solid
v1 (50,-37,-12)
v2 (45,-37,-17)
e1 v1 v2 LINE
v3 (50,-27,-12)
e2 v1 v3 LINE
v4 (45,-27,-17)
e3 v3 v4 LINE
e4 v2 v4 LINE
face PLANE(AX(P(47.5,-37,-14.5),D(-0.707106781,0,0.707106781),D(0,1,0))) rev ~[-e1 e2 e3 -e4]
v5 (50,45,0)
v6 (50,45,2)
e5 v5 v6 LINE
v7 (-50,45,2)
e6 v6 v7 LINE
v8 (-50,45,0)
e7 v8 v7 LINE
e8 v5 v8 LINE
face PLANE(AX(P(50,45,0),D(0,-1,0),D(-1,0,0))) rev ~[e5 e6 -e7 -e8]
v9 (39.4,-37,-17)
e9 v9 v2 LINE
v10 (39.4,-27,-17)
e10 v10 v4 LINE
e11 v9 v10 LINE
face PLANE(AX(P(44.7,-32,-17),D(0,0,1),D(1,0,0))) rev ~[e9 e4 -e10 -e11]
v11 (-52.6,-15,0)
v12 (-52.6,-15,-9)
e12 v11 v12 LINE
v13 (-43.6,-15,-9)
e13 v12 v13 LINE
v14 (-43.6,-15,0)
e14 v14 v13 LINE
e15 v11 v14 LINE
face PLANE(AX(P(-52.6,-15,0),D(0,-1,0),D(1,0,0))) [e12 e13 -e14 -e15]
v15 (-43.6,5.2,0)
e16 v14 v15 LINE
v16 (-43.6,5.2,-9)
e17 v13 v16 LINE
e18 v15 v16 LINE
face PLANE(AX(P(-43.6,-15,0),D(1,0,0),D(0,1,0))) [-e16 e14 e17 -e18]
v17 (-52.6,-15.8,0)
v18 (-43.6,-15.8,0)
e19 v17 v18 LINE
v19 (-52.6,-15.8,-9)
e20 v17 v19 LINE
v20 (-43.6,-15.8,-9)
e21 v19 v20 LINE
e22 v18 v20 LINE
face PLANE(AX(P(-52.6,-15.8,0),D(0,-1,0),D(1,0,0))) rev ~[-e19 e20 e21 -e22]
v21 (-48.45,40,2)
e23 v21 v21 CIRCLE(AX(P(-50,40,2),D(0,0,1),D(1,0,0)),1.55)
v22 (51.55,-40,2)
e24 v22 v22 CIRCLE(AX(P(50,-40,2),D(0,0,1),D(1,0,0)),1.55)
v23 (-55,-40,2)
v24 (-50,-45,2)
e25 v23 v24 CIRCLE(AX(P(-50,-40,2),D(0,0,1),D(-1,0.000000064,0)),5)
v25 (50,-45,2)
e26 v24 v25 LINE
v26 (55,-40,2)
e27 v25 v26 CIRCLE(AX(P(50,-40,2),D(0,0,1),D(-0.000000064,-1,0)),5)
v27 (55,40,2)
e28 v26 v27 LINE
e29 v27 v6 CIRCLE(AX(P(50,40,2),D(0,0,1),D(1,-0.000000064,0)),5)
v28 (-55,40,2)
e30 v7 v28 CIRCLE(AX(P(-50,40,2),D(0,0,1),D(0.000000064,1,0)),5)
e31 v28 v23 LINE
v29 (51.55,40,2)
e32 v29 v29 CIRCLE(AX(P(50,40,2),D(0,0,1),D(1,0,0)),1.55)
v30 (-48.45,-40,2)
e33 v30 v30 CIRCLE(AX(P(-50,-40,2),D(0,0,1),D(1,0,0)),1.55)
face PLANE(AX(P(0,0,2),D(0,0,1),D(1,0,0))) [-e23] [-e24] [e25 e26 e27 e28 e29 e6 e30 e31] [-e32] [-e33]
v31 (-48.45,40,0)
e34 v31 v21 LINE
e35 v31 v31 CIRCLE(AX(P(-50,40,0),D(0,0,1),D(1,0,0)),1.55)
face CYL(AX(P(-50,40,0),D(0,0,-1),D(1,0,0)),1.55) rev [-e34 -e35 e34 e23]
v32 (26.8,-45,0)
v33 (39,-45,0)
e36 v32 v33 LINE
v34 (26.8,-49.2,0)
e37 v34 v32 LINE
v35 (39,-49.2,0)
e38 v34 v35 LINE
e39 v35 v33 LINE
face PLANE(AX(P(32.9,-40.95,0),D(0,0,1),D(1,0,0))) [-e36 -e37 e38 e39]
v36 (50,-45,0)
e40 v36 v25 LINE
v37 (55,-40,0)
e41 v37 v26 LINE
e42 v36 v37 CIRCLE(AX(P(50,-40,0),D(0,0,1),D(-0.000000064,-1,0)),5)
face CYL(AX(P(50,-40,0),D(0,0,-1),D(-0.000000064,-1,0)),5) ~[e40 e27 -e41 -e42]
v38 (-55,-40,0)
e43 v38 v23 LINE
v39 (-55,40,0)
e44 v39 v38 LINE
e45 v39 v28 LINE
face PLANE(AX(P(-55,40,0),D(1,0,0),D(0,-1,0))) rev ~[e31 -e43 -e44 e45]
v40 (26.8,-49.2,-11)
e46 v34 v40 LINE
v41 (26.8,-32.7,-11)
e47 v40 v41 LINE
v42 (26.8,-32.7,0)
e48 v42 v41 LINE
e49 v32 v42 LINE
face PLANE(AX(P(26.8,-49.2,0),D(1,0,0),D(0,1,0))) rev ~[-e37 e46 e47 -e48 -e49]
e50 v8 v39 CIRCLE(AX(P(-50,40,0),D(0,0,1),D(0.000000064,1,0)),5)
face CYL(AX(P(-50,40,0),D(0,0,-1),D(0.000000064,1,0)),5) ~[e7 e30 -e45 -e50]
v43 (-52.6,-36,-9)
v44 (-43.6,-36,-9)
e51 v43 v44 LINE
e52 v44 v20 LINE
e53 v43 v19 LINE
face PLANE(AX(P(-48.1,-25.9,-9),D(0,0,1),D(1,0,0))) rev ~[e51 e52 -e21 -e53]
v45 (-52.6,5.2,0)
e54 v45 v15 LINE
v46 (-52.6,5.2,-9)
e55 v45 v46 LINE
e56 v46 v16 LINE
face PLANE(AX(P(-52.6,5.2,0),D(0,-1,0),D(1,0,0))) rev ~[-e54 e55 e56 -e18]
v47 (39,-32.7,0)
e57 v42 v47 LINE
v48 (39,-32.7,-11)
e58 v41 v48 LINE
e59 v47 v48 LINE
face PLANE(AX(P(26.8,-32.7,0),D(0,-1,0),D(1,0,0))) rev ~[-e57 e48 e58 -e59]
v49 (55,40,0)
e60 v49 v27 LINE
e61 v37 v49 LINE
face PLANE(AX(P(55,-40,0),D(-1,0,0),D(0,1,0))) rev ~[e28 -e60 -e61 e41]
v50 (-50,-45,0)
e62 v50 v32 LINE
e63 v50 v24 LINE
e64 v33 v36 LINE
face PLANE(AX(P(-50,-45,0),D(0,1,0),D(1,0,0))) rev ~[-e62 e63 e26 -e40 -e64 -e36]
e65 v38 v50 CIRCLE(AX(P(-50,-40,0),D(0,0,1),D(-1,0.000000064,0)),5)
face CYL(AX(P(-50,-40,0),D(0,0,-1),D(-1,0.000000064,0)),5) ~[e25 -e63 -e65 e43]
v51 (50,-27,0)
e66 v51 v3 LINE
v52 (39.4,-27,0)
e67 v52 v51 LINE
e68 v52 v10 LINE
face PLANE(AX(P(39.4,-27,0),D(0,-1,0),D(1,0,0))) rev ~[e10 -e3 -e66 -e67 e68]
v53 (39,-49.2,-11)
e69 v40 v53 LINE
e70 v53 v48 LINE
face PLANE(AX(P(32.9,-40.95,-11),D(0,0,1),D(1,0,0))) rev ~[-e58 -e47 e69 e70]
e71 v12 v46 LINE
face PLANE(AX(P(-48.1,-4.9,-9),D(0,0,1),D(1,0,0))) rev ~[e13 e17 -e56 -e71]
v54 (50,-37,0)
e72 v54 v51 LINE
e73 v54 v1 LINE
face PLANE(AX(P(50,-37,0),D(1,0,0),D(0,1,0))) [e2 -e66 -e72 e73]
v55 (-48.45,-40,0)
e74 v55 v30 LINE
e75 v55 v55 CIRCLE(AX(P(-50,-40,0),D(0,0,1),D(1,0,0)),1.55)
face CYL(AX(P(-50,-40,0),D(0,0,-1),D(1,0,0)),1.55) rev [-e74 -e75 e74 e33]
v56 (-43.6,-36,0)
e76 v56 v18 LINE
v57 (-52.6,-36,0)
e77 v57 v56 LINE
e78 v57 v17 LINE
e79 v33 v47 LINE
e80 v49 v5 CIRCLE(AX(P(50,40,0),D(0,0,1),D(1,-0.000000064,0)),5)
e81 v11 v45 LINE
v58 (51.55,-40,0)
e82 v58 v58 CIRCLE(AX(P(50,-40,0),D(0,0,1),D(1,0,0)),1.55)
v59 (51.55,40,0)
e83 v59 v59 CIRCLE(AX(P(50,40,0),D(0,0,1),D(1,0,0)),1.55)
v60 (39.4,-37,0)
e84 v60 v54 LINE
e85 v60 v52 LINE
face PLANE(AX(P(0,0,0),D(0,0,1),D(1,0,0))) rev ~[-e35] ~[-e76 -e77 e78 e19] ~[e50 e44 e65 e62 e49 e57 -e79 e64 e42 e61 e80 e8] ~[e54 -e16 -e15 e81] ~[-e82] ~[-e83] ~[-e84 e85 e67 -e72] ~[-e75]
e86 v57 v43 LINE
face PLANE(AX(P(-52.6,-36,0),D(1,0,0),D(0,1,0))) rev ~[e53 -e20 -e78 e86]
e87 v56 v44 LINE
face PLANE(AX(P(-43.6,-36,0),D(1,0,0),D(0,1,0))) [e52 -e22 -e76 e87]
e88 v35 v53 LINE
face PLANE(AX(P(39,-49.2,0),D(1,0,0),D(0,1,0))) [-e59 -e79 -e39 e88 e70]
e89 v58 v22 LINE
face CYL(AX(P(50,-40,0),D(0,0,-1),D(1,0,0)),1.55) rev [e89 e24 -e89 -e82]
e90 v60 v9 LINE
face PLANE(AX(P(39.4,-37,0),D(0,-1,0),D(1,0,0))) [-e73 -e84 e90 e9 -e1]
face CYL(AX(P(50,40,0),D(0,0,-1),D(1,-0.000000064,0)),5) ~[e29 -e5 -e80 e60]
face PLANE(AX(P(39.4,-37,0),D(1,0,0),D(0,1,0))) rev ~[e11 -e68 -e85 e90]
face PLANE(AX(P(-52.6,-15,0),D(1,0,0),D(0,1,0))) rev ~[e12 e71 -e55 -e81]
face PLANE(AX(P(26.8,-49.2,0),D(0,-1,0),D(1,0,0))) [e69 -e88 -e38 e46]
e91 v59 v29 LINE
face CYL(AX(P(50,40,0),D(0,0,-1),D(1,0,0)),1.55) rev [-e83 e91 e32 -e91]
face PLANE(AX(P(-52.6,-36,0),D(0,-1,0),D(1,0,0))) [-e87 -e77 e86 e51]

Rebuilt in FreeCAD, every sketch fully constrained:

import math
import FreeCAD as App
import Part
import Sketcher

V = App.Vector
Q = App.Units.Quantity


def edges_at(feature, points):
    """Names of the edges that pass closest to the given points."""
    edges = feature.Shape.Edges
    near = lambda p: min(range(len(edges)), key=lambda i: edges[i].distToShape(Part.Vertex(*p))[0])
    return sorted({f"Edge{near(p) + 1}" for p in points})


def add_polygon(sketch, points):
    """Adds a closed chain of lines whose ends are joined by coincident constraints."""
    first, n = sketch.GeometryCount, len(points)
    for a, b in zip(points, points[1:] + points[:1]):
        sketch.addGeometry(Part.LineSegment(App.Vector(*a, 0), App.Vector(*b, 0)), False)
    for i in range(n):
        sketch.addConstraint(Sketcher.Constraint("Coincident", first + i, 2, first + (i + 1) % n, 1))

doc = App.newDocument("Part")
body = doc.addObject("PartDesign::Body", "Body")

# Sketch on XY plane
sketch1 = doc.addObject("Sketcher::SketchObject", "Sketch")
body.addObject(sketch1)
sketch1.AttachmentSupport = (doc.XY_Plane, [""])
sketch1.MapMode = "FlatFace"
sketch1.addGeometry(Part.LineSegment(V(50, 45, 0), V(-50, 45, 0)), False)
sketch1.addGeometry(Part.ArcOfCircle(Part.Circle(V(-50, 40, 0), V(0, 0, 1), 5), math.radians(90), math.radians(180)), False)
sketch1.addGeometry(Part.LineSegment(V(-55, 40, 0), V(-55, -40, 0)), False)
sketch1.addGeometry(Part.ArcOfCircle(Part.Circle(V(-50, -40, 0), V(0, 0, 1), 5), math.radians(180), math.radians(270)), False)
sketch1.addGeometry(Part.LineSegment(V(-50, -45, 0), V(50, -45, 0)), False)
sketch1.addGeometry(Part.ArcOfCircle(Part.Circle(V(50, -40, 0), V(0, 0, 1), 5), math.radians(-90), math.radians(0)), False)
sketch1.addGeometry(Part.LineSegment(V(55, -40, 0), V(55, 40, 0)), False)
sketch1.addGeometry(Part.ArcOfCircle(Part.Circle(V(50, 40, 0), V(0, 0, 1), 5), math.radians(0), math.radians(90)), False)
sketch1.addGeometry(Part.Circle(V(-50, -40, 0), V(0, 0, 1), 1.6), False)
sketch1.addGeometry(Part.Circle(V(50, -40, 0), V(0, 0, 1), 1.6), False)
sketch1.addGeometry(Part.Circle(V(-50, 40, 0), V(0, 0, 1), 1.6), False)
sketch1.addGeometry(Part.Circle(V(50, 40, 0), V(0, 0, 1), 1.6), False)
sketch1.addConstraint(Sketcher.Constraint("Tangent", 0, 2, 1, 1))
sketch1.addConstraint(Sketcher.Constraint("Tangent", 1, 2, 2, 1))
sketch1.addConstraint(Sketcher.Constraint("Tangent", 2, 2, 3, 1))
sketch1.addConstraint(Sketcher.Constraint("Tangent", 3, 2, 4, 1))
sketch1.addConstraint(Sketcher.Constraint("Tangent", 4, 2, 5, 1))
sketch1.addConstraint(Sketcher.Constraint("Tangent", 5, 2, 6, 1))
sketch1.addConstraint(Sketcher.Constraint("Tangent", 6, 2, 7, 1))
sketch1.addConstraint(Sketcher.Constraint("Tangent", 7, 2, 0, 1))
sketch1.addConstraint(Sketcher.Constraint("Horizontal", 0))
sketch1.addConstraint(Sketcher.Constraint("Vertical", 2))
sketch1.addConstraint(Sketcher.Constraint("Horizontal", 4))
sketch1.addConstraint(Sketcher.Constraint("Vertical", 6))
sketch1.addConstraint(Sketcher.Constraint("Coincident", 8, 3, 3, 3))
sketch1.addConstraint(Sketcher.Constraint("Coincident", 9, 3, 5, 3))
sketch1.addConstraint(Sketcher.Constraint("Coincident", 10, 3, 1, 3))
sketch1.addConstraint(Sketcher.Constraint("Coincident", 11, 3, 7, 3))
sketch1.addConstraint(Sketcher.Constraint("Equal", 1, 3))
sketch1.addConstraint(Sketcher.Constraint("Equal", 3, 5))
sketch1.addConstraint(Sketcher.Constraint("Equal", 5, 7))
sketch1.addConstraint(Sketcher.Constraint("Equal", 8, 9))
sketch1.addConstraint(Sketcher.Constraint("Equal", 9, 10))
sketch1.addConstraint(Sketcher.Constraint("Equal", 10, 11))
sketch1.addConstraint(Sketcher.Constraint("Symmetric", 1, 3, 5, 3, -1, 1))
sketch1.addConstraint(Sketcher.Constraint("Radius", 1, Q("5 mm")))
sketch1.addConstraint(Sketcher.Constraint("Diameter", 8, Q("3.1 mm")))
sketch1.addConstraint(Sketcher.Constraint("DistanceX", 0, 2, 0, 1, Q("100 mm")))
sketch1.addConstraint(Sketcher.Constraint("DistanceY", 2, 2, 2, 1, Q("80 mm")))
pad1 = doc.addObject("PartDesign::Pad", "Pad")
body.addObject(pad1)
pad1.Profile = sketch1
pad1.Length = 2

# Sketch on XY plane
sketch2 = doc.addObject("Sketcher::SketchObject", "Sketch001")
body.addObject(sketch2)
sketch2.AttachmentSupport = (doc.XY_Plane, [""])
sketch2.MapMode = "FlatFace"
add_polygon(sketch2, [(27, -33), (27, -49), (39, -49), (39, -33)])  # lines 0-3
sketch2.addConstraint(Sketcher.Constraint("Vertical", 0))
sketch2.addConstraint(Sketcher.Constraint("Horizontal", 1))
sketch2.addConstraint(Sketcher.Constraint("Vertical", 2))
sketch2.addConstraint(Sketcher.Constraint("Horizontal", 3))
sketch2.addConstraint(Sketcher.Constraint("DistanceX", 1, 1, 1, 2, Q("12.2 mm")))
sketch2.addConstraint(Sketcher.Constraint("DistanceY", 0, 2, 0, 1, Q("16.5 mm")))
sketch2.addConstraint(Sketcher.Constraint("DistanceX", -1, 1, 1, 2, Q("39 mm")))
sketch2.addConstraint(Sketcher.Constraint("DistanceY", 0, 2, -1, 1, Q("49.2 mm")))
pad2 = doc.addObject("PartDesign::Pad", "Pad001")
body.addObject(pad2)
pad2.Profile = sketch2
pad2.Length = 11
pad2.Reversed = True

# Sketch on XY plane
sketch3 = doc.addObject("Sketcher::SketchObject", "Sketch002")
body.addObject(sketch3)
sketch3.AttachmentSupport = (doc.XY_Plane, [""])
sketch3.MapMode = "FlatFace"
add_polygon(sketch3, [(39, -27), (39, -37), (50, -37), (50, -27)])  # lines 0-3
sketch3.addConstraint(Sketcher.Constraint("Vertical", 0))
sketch3.addConstraint(Sketcher.Constraint("Horizontal", 1))
sketch3.addConstraint(Sketcher.Constraint("Vertical", 2))
sketch3.addConstraint(Sketcher.Constraint("Horizontal", 3))
sketch3.addConstraint(Sketcher.Constraint("DistanceY", 0, 2, 0, 1, Q("10 mm")))
sketch3.addConstraint(Sketcher.Constraint("DistanceX", 1, 1, 1, 2, Q("10.6 mm")))
sketch3.addConstraint(Sketcher.Constraint("DistanceY", 0, 2, -1, 1, Q("37 mm")))
sketch3.addConstraint(Sketcher.Constraint("DistanceX", -1, 1, 1, 2, Q("50 mm")))
pad3 = doc.addObject("PartDesign::Pad", "Pad002")
body.addObject(pad3)
pad3.Profile = sketch3
pad3.Length = 17
pad3.Reversed = True
doc.recompute()

chamfer = doc.addObject("PartDesign::Chamfer", "Chamfer")
body.addObject(chamfer)
chamfer.Base = (pad3, edges_at(pad3, [(50, -32, -17)]))
chamfer.Size = 5

# Sketch on XY plane
sketch4 = doc.addObject("Sketcher::SketchObject", "Sketch003")
body.addObject(sketch4)
sketch4.AttachmentSupport = (doc.XY_Plane, [""])
sketch4.MapMode = "FlatFace"
add_polygon(sketch4, [(-53, -16), (-53, -36), (-44, -36), (-44, -16)])  # lines 0-3
add_polygon(sketch4, [(-53, 5), (-53, -15), (-44, -15), (-44, 5)])  # lines 4-7
sketch4.addConstraint(Sketcher.Constraint("Vertical", 0))
sketch4.addConstraint(Sketcher.Constraint("Horizontal", 1))
sketch4.addConstraint(Sketcher.Constraint("Vertical", 2))
sketch4.addConstraint(Sketcher.Constraint("Horizontal", 3))
sketch4.addConstraint(Sketcher.Constraint("Vertical", 4))
sketch4.addConstraint(Sketcher.Constraint("Horizontal", 5))
sketch4.addConstraint(Sketcher.Constraint("Vertical", 6))
sketch4.addConstraint(Sketcher.Constraint("Horizontal", 7))
sketch4.addConstraint(Sketcher.Constraint("Vertical", 3, 2, 4, 2))
sketch4.addConstraint(Sketcher.Constraint("Vertical", 2, 2, 5, 2))
sketch4.addConstraint(Sketcher.Constraint("Equal", 2, 4))
sketch4.addConstraint(Sketcher.Constraint("DistanceX", 1, 1, 1, 2, Q("9 mm")))
sketch4.addConstraint(Sketcher.Constraint("DistanceY", 0, 2, 0, 1, Q("20.2 mm")))
sketch4.addConstraint(Sketcher.Constraint("DistanceY", 0, 2, -1, 1, Q("36 mm")))
sketch4.addConstraint(Sketcher.Constraint("DistanceY", 4, 2, -1, 1, Q("15 mm")))
sketch4.addConstraint(Sketcher.Constraint("DistanceX", 0, 2, -1, 1, Q("52.6 mm")))
pad4 = doc.addObject("PartDesign::Pad", "Pad003")
body.addObject(pad4)
pad4.Profile = sketch4
pad4.Length = 9
pad4.Reversed = True

doc.recompute()
